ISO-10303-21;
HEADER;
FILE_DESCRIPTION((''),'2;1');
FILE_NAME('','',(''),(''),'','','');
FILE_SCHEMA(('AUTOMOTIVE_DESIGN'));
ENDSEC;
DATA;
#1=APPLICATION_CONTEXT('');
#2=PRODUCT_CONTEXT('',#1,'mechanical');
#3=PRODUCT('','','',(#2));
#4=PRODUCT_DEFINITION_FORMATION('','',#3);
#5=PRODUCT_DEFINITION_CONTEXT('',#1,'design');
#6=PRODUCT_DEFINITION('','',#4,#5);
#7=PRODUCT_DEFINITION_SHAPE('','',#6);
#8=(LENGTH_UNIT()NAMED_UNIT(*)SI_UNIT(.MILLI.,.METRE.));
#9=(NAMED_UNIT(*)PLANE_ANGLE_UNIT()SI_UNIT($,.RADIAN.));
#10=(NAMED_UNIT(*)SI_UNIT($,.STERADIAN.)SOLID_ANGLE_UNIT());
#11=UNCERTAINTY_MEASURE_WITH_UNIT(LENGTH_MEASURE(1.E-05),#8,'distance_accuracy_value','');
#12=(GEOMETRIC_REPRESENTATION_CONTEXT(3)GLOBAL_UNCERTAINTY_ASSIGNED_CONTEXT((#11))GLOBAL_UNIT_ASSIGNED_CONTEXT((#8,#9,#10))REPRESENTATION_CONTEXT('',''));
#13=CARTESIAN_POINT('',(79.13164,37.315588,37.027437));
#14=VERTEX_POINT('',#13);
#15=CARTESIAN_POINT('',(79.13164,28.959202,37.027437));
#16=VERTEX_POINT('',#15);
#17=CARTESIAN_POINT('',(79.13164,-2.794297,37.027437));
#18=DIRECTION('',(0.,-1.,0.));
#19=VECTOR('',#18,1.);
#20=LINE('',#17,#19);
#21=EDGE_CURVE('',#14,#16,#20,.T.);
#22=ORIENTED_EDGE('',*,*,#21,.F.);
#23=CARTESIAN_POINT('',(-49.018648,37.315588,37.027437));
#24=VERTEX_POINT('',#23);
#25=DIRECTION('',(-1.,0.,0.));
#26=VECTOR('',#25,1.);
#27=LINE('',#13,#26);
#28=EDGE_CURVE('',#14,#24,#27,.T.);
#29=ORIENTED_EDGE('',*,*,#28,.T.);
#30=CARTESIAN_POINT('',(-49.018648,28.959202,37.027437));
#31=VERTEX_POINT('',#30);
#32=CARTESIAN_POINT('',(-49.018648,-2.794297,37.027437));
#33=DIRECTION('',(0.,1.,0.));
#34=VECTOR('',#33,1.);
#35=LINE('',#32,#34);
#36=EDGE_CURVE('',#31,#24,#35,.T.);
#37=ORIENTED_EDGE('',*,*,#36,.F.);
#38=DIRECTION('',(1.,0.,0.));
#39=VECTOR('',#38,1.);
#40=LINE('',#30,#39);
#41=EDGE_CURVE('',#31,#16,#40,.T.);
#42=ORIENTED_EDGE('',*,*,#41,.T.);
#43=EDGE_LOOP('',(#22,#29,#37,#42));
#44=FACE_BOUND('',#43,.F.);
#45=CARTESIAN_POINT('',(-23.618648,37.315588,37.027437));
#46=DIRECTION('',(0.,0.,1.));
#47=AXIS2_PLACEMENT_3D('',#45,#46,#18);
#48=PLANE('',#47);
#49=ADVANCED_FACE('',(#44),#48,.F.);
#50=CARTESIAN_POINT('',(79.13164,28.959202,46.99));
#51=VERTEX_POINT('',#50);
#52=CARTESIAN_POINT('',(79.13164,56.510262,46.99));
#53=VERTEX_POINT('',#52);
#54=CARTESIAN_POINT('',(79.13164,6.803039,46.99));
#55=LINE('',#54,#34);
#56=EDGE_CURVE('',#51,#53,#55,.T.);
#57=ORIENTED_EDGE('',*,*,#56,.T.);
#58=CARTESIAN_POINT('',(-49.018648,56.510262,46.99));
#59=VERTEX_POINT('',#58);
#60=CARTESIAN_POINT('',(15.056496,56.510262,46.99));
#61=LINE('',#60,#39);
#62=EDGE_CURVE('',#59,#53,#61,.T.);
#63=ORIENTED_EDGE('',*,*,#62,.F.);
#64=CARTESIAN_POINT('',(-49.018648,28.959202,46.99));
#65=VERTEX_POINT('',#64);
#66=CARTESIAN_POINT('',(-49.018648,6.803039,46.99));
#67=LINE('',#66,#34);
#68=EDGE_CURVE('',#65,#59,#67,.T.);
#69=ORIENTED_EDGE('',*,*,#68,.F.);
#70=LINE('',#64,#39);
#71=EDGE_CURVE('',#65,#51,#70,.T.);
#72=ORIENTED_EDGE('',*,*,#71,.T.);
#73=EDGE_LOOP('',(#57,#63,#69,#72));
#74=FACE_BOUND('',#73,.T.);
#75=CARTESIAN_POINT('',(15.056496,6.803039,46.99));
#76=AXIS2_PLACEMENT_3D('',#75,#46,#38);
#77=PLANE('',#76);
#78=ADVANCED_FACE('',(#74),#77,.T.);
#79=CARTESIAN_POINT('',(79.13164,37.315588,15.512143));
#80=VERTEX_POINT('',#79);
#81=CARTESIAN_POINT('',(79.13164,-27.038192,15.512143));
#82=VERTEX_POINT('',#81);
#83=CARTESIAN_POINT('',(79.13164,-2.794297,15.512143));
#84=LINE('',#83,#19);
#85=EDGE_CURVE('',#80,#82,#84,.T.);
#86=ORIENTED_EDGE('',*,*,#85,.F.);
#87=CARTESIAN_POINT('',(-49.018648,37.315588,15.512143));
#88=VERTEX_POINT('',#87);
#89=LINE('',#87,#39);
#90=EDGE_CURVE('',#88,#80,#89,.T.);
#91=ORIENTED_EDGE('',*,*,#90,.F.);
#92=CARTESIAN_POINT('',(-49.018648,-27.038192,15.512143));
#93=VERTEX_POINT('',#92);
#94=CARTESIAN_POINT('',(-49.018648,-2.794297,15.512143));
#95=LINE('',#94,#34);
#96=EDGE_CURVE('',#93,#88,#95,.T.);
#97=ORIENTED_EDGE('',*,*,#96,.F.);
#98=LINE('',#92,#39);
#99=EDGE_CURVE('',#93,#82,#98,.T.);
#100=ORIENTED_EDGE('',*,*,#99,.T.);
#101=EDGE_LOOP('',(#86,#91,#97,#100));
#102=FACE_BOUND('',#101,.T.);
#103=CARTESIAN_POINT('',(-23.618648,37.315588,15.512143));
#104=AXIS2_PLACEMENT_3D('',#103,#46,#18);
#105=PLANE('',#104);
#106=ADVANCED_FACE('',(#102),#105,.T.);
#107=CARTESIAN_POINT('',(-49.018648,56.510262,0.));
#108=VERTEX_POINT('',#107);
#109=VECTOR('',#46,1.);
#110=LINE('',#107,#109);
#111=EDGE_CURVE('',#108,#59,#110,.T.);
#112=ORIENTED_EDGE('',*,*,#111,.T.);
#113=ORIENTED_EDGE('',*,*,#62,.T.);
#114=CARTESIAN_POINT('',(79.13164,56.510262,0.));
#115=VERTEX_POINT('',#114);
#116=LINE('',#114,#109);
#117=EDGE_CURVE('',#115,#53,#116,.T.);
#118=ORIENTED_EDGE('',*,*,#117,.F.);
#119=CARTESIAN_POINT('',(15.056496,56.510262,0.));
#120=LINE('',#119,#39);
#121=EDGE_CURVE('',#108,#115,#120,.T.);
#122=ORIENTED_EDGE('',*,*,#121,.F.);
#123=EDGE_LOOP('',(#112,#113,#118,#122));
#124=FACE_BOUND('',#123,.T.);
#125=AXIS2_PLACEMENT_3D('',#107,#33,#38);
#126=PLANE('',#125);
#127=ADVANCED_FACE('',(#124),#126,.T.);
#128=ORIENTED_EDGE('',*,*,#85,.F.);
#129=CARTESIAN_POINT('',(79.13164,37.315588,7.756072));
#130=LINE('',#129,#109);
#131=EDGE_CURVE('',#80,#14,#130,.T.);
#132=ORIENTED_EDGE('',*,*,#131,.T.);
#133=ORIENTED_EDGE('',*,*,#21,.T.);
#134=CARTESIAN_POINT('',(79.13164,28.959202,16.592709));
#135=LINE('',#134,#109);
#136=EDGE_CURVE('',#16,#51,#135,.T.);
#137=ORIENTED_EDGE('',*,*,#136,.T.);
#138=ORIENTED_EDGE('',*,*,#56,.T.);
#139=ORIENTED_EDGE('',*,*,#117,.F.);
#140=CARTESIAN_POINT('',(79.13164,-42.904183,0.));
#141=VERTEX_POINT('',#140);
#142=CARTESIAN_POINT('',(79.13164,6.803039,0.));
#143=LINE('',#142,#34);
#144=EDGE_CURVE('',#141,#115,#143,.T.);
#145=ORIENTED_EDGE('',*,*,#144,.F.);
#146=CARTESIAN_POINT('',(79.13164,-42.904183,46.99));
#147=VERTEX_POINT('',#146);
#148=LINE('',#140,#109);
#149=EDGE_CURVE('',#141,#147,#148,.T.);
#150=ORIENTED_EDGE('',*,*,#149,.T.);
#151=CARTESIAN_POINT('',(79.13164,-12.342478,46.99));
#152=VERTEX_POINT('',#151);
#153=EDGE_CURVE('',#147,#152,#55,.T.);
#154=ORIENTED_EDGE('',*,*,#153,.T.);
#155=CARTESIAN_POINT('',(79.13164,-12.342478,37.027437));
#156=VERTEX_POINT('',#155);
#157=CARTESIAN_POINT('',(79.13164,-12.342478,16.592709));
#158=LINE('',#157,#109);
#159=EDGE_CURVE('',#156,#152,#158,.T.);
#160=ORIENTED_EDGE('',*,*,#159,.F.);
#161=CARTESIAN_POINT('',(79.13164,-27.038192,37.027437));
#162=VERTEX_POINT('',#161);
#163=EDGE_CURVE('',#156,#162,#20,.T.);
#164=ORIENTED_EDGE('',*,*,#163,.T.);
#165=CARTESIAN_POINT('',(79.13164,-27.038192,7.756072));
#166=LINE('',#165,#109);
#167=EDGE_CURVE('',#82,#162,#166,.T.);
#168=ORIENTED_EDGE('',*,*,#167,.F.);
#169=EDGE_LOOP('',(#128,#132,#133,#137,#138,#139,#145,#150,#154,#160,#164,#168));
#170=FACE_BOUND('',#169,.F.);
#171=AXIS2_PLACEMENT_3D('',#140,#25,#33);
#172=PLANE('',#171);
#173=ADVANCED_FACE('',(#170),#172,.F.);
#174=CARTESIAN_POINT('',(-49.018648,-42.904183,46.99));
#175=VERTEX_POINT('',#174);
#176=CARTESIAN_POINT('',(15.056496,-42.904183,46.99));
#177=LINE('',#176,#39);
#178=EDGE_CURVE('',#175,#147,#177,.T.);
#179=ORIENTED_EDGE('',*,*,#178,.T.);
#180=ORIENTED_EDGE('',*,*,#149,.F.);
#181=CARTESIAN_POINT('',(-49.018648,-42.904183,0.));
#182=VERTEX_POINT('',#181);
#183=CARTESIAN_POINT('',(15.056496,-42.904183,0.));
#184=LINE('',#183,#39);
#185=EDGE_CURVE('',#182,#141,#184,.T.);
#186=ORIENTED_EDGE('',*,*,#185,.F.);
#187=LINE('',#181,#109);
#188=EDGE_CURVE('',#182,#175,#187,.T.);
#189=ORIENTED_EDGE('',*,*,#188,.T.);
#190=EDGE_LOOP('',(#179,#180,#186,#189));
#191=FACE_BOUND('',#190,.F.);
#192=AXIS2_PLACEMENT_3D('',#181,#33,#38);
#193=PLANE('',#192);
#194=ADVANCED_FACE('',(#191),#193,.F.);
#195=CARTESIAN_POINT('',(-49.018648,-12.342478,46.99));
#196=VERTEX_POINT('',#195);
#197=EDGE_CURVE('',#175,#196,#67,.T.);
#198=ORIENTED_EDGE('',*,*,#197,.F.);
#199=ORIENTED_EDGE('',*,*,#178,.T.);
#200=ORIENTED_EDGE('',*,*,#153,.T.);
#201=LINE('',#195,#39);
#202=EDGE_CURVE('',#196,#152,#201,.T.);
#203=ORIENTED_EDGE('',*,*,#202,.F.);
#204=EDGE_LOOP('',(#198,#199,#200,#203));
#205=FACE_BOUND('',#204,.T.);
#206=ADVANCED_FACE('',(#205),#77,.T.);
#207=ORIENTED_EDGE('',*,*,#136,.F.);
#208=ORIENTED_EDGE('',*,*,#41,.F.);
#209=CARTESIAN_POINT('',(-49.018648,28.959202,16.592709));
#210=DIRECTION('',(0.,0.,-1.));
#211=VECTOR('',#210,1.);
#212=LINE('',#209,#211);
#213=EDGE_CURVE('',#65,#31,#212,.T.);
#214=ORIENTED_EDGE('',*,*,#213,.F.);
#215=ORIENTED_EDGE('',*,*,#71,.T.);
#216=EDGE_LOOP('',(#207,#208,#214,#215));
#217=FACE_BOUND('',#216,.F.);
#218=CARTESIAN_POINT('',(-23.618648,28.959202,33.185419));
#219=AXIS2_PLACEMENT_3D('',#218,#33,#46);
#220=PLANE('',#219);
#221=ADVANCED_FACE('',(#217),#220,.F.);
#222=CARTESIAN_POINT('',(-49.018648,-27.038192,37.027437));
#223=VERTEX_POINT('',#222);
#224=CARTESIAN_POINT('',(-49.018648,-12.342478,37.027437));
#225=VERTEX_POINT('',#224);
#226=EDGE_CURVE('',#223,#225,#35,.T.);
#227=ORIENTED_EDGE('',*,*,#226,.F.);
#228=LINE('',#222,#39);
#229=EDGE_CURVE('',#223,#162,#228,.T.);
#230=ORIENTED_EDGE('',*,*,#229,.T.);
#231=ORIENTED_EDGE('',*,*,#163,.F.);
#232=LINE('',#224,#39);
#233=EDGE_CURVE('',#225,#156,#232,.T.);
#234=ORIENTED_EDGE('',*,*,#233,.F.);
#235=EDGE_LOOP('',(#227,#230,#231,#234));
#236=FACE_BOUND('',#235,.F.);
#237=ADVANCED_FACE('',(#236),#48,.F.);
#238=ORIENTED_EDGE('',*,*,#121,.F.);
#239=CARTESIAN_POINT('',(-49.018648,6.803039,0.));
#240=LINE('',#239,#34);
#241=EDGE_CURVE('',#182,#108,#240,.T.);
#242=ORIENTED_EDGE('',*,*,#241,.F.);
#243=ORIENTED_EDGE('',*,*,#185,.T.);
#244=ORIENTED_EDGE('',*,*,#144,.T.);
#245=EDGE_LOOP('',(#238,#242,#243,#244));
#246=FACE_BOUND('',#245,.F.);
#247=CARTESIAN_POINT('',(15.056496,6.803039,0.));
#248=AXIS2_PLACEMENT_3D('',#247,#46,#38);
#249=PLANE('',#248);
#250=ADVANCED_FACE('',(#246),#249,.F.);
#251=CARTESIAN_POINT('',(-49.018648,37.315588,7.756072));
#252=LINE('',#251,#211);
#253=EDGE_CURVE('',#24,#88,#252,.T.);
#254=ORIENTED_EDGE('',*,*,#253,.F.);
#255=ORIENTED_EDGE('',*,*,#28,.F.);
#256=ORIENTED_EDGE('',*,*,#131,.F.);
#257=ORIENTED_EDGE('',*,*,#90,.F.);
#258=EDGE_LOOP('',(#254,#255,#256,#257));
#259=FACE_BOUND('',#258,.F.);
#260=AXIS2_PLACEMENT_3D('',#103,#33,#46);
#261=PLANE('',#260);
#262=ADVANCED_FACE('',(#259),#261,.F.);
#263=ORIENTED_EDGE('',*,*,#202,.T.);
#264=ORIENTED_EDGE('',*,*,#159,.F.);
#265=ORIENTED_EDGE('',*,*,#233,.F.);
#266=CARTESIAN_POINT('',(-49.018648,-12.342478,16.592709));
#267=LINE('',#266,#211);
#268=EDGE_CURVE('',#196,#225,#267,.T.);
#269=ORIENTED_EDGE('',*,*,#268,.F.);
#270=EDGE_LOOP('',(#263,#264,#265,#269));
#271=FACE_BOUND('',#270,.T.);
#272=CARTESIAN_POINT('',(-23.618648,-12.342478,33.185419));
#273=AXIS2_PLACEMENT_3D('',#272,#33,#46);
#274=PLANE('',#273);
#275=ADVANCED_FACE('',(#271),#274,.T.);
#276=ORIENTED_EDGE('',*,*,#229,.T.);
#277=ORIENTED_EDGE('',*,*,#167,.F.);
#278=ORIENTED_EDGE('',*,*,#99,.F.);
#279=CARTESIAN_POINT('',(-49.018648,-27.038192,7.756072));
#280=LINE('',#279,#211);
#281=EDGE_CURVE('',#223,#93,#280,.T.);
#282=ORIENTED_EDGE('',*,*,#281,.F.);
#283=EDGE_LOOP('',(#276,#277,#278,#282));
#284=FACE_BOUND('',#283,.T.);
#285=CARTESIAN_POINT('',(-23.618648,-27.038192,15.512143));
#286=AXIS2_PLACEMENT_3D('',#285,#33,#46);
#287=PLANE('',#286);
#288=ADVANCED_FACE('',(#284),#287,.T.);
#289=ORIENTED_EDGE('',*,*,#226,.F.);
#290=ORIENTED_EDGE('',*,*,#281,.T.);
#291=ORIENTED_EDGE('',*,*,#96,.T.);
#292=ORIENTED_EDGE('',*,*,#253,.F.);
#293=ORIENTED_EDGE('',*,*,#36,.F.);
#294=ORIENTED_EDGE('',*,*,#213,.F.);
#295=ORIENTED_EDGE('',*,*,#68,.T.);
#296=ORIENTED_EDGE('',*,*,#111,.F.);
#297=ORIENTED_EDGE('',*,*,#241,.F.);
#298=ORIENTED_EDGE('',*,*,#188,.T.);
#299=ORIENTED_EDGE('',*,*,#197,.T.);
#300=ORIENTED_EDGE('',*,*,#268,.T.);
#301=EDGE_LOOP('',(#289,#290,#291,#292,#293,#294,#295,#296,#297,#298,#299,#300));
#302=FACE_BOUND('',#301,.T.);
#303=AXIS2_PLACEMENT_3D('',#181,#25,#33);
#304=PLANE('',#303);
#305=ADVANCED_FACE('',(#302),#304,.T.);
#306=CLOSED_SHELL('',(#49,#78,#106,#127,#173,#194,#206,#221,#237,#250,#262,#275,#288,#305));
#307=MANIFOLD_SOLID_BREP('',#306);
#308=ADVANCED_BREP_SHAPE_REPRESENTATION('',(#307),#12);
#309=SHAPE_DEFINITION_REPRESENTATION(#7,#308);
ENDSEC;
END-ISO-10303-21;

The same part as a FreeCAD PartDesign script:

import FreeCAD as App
import Part
import Sketcher
from FreeCAD import Vector
Q = App.Units.Quantity


def add_polygon(sketch, points):
    """Adds a closed chain of lines whose ends are joined by coincident constraints."""
    first, n = sketch.GeometryCount, len(points)
    for a, b in zip(points, points[1:] + points[:1]):
        sketch.addGeometry(Part.LineSegment(App.Vector(*a, 0), App.Vector(*b, 0)), False)
    for i in range(n):
        sketch.addConstraint(Sketcher.Constraint("Coincident", first + i, 2, first + (i + 1) % n, 1))

doc = App.newDocument("Part")
body = doc.addObject("PartDesign::Body", "Body")

# Sketch on XY plane
sketch1 = body.newObject("Sketcher::SketchObject", "Sketch")
sketch1.AttachmentSupport = (doc.getObject("XY_Plane"), [""])
sketch1.MapMode = "FlatFace"
add_polygon(sketch1, [(-49, 57), (-49, -43), (79, -43), (79, 57)])  # lines 0-3
sketch1.addConstraint([
    Sketcher.Constraint("Vertical", 0),
    Sketcher.Constraint("Horizontal", 1),
    Sketcher.Constraint("Vertical", 2),
    Sketcher.Constraint("Horizontal", 3),
    Sketcher.Constraint("DistanceX", 1, 1, 1, 2, 128.150288),
    Sketcher.Constraint("DistanceY", 0, 2, 0, 1, 99.414445),
    Sketcher.Constraint("DistanceX", -1, 1, 1, 2, 79.13164),
    Sketcher.Constraint("DistanceY", 0, 2, -1, 1, 42.904183),
])
pad1 = body.newObject("PartDesign::Pad", "Pad")
pad1.Profile = sketch1
pad1.Length = Q("1.85 in")

# Sketch on YZ plane
sketch2 = body.newObject("Sketcher::SketchObject", "Sketch001")
sketch2.AttachmentSupport = (doc.getObject("YZ_Plane"), [""])
sketch2.MapMode = "FlatFace"
sketch2.AttachmentOffset = App.Placement(Vector(0, 0, -23.618648), App.Rotation())
add_polygon(sketch2, [(37, 37), (37, 16), (-27, 16), (-27, 37)])  # lines 0-3
sketch2.addConstraint([
    Sketcher.Constraint("Vertical", 0),
    Sketcher.Constraint("Horizontal", 1),
    Sketcher.Constraint("Vertical", 2),
    Sketcher.Constraint("Horizontal", 3),
    Sketcher.Constraint("DistanceX", 1, 2, 1, 1, 64.353781),
    Sketcher.Constraint("DistanceY", 0, 2, 0, 1, 21.515294),
    Sketcher.Constraint("DistanceX", -1, 1, 0, 2, 37.315588),
    Sketcher.Constraint("DistanceY", -1, 1, 0, 2, 15.512143),
])
pocket1 = body.newObject("PartDesign::Pocket", "Pocket")
pocket1.Profile = sketch2
pocket1.Type = "ThroughAll"
pocket1.Reversed = True

# Sketch on YZ plane
sketch3 = body.newObject("Sketcher::SketchObject", "Sketch002")
sketch3.AttachmentSupport = (doc.getObject("YZ_Plane"), [""])
sketch3.MapMode = "FlatFace"
sketch3.AttachmentOffset = App.Placement(Vector(0, 0, -23.618648), App.Rotation())
add_polygon(sketch3, [(29, 56), (29, 33), (-12, 33), (-12, 56)])  # lines 0-3
sketch3.addConstraint([
    Sketcher.Constraint("Vertical", 0),
    Sketcher.Constraint("Horizontal", 1),
    Sketcher.Constraint("Vertical", 2),
    Sketcher.Constraint("Horizontal", 3),
    Sketcher.Constraint("DistanceX", 1, 2, 1, 1, 41.30168),
    Sketcher.Constraint("DistanceX", -1, 1, 0, 2, 28.959202),
    Sketcher.Constraint("DistanceY", 0, 2, 0, 1, 23.244202),
    Sketcher.Constraint("DistanceY", -1, 1, 0, 2, 33.185419),
])
pocket2 = body.newObject("PartDesign::Pocket", "Pocket001")
pocket2.Profile = sketch3
pocket2.Length = Q("6.61 in")
pocket2.Reversed = True

# Sketch on YZ plane
sketch4 = body.newObject("Sketcher::SketchObject", "Sketch003")
sketch4.AttachmentSupport = (doc.getObject("YZ_Plane"), [""])
sketch4.MapMode = "FlatFace"
sketch4.AttachmentOffset = App.Placement(Vector(0, 0, -23.618648), App.Rotation())
add_polygon(sketch4, [(37, 37), (37, 16), (-27, 16), (-27, 37)])  # lines 0-3
sketch4.addConstraint([
    Sketcher.Constraint("Vertical", 0),
    Sketcher.Constraint("Horizontal", 1),
    Sketcher.Constraint("Vertical", 2),
    Sketcher.Constraint("Horizontal", 3),
    Sketcher.Constraint("DistanceX", 1, 2, 1, 1, 64.353781),
    Sketcher.Constraint("DistanceY", 0, 2, 0, 1, 21.515294),
    Sketcher.Constraint("DistanceX", -1, 1, 0, 2, 37.315588),
    Sketcher.Constraint("DistanceY", -1, 1, 0, 2, 15.512143),
])
pocket3 = body.newObject("PartDesign::Pocket", "Pocket002")
pocket3.Profile = sketch4
pocket3.Length = Q("2.52 in")

# Sketch on YZ plane
sketch5 = body.newObject("Sketcher::SketchObject", "Sketch004")
sketch5.AttachmentSupport = (doc.getObject("YZ_Plane"), [""])
sketch5.MapMode = "FlatFace"
sketch5.AttachmentOffset = App.Placement(Vector(0, 0, -23.618648), App.Rotation())
add_polygon(sketch5, [(29, 56), (29, 33), (-12, 33), (-12, 56)])  # lines 0-3
sketch5.addConstraint([
    Sketcher.Constraint("Vertical", 0),
    Sketcher.Constraint("Horizontal", 1),
    Sketcher.Constraint("Vertical", 2),
    Sketcher.Constraint("Horizontal", 3),
    Sketcher.Constraint("DistanceX", 1, 2, 1, 1, 41.30168),
    Sketcher.Constraint("DistanceX", -1, 1, 0, 2, 28.959202),
    Sketcher.Constraint("DistanceY", 0, 2, 0, 1, 23.244202),
    Sketcher.Constraint("DistanceY", -1, 1, 0, 2, 33.185419),
])
pocket4 = body.newObject("PartDesign::Pocket", "Pocket003")
pocket4.Profile = sketch5
pocket4.Length = Q("3.47 in")

doc.recompute()
